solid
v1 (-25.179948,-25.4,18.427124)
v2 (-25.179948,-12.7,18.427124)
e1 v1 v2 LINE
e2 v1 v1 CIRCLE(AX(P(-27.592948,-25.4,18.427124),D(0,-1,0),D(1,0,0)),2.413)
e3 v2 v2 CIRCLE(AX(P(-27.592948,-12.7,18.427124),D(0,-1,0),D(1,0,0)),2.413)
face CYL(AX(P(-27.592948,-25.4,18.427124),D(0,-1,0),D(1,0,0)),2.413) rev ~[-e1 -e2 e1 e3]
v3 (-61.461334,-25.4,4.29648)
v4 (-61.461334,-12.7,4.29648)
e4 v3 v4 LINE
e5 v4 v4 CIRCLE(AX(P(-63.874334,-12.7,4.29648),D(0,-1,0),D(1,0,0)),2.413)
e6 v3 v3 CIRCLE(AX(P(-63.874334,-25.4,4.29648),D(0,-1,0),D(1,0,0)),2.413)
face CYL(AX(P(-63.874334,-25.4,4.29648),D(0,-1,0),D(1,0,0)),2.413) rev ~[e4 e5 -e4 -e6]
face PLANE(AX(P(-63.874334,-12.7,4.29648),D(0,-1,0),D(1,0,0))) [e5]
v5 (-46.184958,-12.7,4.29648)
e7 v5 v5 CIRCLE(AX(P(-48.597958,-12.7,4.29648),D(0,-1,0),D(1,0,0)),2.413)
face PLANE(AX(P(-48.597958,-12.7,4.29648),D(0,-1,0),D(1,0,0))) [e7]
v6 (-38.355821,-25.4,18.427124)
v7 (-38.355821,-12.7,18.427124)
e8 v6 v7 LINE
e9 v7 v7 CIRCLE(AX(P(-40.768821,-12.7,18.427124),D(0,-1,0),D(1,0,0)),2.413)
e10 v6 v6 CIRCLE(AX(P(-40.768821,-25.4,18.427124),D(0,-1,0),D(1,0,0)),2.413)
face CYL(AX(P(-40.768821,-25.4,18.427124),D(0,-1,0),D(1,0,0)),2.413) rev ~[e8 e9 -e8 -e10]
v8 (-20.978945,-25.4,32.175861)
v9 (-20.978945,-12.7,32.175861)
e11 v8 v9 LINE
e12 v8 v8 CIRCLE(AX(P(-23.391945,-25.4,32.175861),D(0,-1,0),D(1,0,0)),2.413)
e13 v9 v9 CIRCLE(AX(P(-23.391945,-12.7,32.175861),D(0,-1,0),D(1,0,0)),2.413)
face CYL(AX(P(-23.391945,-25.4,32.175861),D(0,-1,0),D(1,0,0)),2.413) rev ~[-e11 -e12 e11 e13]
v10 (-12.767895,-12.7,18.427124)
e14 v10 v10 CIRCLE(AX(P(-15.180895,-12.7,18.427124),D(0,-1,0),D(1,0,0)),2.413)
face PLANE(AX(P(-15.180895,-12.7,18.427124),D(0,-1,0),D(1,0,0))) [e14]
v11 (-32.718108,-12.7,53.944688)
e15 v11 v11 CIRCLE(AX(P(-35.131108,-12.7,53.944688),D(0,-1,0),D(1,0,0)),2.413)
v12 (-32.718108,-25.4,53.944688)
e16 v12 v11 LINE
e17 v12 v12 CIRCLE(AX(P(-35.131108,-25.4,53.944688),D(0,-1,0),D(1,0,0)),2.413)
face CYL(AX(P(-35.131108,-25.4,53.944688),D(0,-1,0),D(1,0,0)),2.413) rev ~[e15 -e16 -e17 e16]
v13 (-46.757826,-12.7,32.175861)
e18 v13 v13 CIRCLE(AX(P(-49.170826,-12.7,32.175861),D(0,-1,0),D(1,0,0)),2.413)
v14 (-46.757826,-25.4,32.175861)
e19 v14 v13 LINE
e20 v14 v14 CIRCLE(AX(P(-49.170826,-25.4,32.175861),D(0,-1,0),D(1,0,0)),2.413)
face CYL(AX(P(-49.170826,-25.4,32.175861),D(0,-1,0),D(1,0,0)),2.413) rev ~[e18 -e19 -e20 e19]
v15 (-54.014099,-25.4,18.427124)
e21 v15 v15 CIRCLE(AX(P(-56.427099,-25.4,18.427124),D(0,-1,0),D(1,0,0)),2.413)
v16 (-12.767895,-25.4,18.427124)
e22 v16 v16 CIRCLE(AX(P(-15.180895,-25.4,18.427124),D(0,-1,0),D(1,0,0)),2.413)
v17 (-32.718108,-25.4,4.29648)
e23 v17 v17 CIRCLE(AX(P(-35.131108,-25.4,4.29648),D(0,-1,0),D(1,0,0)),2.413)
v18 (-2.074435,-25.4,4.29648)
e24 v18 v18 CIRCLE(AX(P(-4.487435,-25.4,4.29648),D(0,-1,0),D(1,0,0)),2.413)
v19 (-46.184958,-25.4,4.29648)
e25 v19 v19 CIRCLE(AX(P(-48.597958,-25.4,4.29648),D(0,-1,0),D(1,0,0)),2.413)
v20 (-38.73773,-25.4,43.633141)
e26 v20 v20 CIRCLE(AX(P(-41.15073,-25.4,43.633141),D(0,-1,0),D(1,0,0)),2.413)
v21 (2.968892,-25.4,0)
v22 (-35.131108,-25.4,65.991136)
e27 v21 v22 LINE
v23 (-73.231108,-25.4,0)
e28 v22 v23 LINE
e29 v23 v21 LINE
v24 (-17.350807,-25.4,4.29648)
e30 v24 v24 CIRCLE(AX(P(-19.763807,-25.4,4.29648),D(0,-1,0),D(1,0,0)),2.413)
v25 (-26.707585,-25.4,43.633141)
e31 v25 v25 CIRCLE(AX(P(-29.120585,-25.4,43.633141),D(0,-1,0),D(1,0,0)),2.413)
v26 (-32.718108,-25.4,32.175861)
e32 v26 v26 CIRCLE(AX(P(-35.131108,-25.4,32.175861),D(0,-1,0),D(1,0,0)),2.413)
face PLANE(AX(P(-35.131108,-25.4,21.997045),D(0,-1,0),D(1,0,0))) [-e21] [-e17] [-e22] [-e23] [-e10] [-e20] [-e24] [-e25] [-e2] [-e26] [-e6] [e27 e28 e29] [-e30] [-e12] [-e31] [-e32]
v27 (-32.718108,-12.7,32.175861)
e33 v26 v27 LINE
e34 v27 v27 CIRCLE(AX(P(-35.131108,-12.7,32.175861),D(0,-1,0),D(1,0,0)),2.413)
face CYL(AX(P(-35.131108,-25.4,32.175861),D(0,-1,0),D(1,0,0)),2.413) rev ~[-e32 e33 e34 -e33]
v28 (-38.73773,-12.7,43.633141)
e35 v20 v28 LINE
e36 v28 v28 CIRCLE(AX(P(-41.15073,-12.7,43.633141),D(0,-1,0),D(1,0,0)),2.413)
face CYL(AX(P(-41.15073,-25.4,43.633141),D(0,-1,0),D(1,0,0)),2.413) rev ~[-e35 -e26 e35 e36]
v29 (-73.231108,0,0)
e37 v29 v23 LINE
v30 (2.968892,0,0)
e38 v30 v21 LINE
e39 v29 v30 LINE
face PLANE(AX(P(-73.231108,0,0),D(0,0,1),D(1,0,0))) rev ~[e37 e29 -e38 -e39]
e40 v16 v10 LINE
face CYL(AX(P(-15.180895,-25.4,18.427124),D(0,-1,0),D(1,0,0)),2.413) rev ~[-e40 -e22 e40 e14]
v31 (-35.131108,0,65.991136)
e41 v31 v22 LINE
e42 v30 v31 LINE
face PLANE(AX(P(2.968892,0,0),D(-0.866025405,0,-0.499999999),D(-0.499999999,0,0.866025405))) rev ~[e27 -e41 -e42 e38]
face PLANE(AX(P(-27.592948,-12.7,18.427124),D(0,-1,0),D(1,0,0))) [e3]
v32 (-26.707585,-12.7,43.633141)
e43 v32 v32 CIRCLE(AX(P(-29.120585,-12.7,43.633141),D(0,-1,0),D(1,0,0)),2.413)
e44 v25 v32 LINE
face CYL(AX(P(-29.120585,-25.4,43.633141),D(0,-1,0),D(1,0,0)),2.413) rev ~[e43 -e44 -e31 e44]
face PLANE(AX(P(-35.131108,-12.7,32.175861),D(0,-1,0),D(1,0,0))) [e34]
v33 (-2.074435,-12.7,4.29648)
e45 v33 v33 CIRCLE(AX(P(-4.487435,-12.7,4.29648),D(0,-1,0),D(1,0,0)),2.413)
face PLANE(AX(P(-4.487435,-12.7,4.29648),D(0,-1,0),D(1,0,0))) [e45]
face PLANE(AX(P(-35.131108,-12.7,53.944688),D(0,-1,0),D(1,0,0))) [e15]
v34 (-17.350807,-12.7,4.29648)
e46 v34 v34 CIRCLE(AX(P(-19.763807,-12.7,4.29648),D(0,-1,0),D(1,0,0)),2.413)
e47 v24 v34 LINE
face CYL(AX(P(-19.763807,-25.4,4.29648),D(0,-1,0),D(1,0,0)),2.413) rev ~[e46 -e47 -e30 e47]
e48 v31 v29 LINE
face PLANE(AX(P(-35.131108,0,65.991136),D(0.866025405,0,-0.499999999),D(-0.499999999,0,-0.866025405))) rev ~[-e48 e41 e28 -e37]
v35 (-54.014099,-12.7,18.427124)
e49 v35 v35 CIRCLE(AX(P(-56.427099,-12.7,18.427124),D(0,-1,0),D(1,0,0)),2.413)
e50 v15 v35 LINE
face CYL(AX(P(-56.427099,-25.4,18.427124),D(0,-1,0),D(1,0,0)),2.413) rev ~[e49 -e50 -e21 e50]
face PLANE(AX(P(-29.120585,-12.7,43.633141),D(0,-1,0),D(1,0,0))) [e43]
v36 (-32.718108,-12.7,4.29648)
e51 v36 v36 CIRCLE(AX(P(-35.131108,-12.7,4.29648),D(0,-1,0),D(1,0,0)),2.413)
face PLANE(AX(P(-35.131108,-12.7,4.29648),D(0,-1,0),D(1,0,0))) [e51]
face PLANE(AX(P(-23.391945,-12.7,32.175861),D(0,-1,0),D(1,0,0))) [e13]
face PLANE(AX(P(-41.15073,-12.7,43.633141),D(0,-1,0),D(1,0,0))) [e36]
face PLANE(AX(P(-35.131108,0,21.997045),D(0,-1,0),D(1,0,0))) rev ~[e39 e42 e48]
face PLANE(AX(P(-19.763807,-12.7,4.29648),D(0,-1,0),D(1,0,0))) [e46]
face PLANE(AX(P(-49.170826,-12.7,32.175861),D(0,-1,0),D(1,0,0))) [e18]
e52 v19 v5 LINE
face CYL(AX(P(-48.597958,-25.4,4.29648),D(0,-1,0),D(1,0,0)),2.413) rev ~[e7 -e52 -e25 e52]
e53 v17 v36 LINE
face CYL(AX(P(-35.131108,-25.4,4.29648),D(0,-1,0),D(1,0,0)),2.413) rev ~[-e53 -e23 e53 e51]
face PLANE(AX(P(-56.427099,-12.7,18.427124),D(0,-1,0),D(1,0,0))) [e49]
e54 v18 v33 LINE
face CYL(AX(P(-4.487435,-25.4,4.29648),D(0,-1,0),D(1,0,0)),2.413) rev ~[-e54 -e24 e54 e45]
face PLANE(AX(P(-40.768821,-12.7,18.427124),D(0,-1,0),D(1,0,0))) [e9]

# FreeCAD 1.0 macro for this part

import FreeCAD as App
import Part
import Sketcher

V = App.Vector
Q = App.Units.Quantity


def add_polygon(sketch, points):
    """Adds a closed chain of lines whose ends are joined by coincident constraints."""
    first, n = sketch.GeometryCount, len(points)
    for a, b in zip(points, points[1:] + points[:1]):
        sketch.addGeometry(Part.LineSegment(App.Vector(*a, 0), App.Vector(*b, 0)), False)
    for i in range(n):
        sketch.addConstraint(Sketcher.Constraint("Coincident", first + i, 2, first + (i + 1) % n, 1))

doc = App.newDocument("Part")
body = doc.addObject("PartDesign::Body", "Body")

# Sketch on XZ plane
sketch1 = body.newObject("Sketcher::SketchObject", "Sketch")
sketch1.AttachmentSupport = (doc.getObject("XZ_Plane"), [""])
sketch1.MapMode = "FlatFace"
add_polygon(sketch1, [(-35.131108, 65.991136), (-73.231108, 0), (2.968892, 0)])  # lines 0-2
sketch1.addConstraint([
    Sketcher.Constraint("Horizontal", 1),
    Sketcher.Constraint("PointOnObject", 0, 2, -1),
    Sketcher.Constraint("Equal", 0, 2),
    Sketcher.Constraint("DistanceX", 1, 1, 1, 2, Q("3 in")),
    Sketcher.Constraint("Distance", 0, Q("3 in")),
    Sketcher.Constraint("DistanceX", 0, 2, -1, 1, 73.231108),
])
pad1 = body.newObject("PartDesign::Pad", "Pad")
pad1.Profile = sketch1
pad1.Length = Q("1 in")

# Sketch on XZ plane
sketch2 = body.newObject("Sketcher::SketchObject", "Sketch001")
sketch2.AttachmentSupport = (doc.getObject("XZ_Plane"), [""])
sketch2.MapMode = "FlatFace"
sketch2.AttachmentOffset = App.Placement(V(0, 0, 1 * 25.4), App.Rotation())
sketch2.addGeometry([
    Part.Circle(V(-63.874334, 4.29648, 0), V(0, 0, 1), 2.413),  # 0
    Part.Circle(V(-48.597958, 4.29648, 0), V(0, 0, 1), 2.413),  # 1
    Part.Circle(V(-35.131108, 4.29648, 0), V(0, 0, 1), 2.413),  # 2
    Part.Circle(V(-19.763807, 4.29648, 0), V(0, 0, 1), 2.413),  # 3
    Part.Circle(V(-4.487435, 4.29648, 0), V(0, 0, 1), 2.413),  # 4
], False)
sketch2.addConstraint([
    Sketcher.Constraint("Equal", 0, 1),
    Sketcher.Constraint("Equal", 1, 2),
    Sketcher.Constraint("Equal", 2, 3),
    Sketcher.Constraint("Equal", 3, 4),
    Sketcher.Constraint("Horizontal", 0, 3, 1, 3),
    Sketcher.Constraint("Horizontal", 1, 3, 2, 3),
    Sketcher.Constraint("Horizontal", 2, 3, 3, 3),
    Sketcher.Constraint("Horizontal", 3, 3, 4, 3),
    Sketcher.Constraint("Diameter", 0, Q("0.19 in")),
    Sketcher.Constraint("DistanceX", 2, 3, 3, 3, 15.367301),
    Sketcher.Constraint("DistanceX", 0, 3, 4, 3, 59.386899),
    Sketcher.Constraint("DistanceY", -1, 1, 0, 3, 4.29648),
    Sketcher.Constraint("DistanceX", 1, 3, 2, 3, 13.46685),
    Sketcher.Constraint("DistanceX", 0, 3, -1, 1, 63.874334),
    Sketcher.Constraint("DistanceX", 1, 3, -1, 1, 48.597958),
])
pocket1 = body.newObject("PartDesign::Pocket", "Pocket")
pocket1.Profile = sketch2
pocket1.Length = Q("0.5 in")

# Sketch on XZ plane
sketch3 = body.newObject("Sketcher::SketchObject", "Sketch002")
sketch3.AttachmentSupport = (doc.getObject("XZ_Plane"), [""])
sketch3.MapMode = "FlatFace"
sketch3.AttachmentOffset = App.Placement(V(0, 0, 1 * 25.4), App.Rotation())
sketch3.addGeometry([
    Part.Circle(V(-56.427099, 18.427124, 0), V(0, 0, 1), 2.413),  # 0
    Part.Circle(V(-40.768821, 18.427124, 0), V(0, 0, 1), 2.413),  # 1
    Part.Circle(V(-27.592948, 18.427124, 0), V(0, 0, 1), 2.413),  # 2
    Part.Circle(V(-15.180895, 18.427124, 0), V(0, 0, 1), 2.413),  # 3
    Part.Circle(V(-23.391945, 32.175861, 0), V(0, 0, 1), 2.413),  # 4
    Part.Circle(V(-35.131108, 32.175861, 0), V(0, 0, 1), 2.413),  # 5
    Part.Circle(V(-49.170826, 32.175861, 0), V(0, 0, 1), 2.413),  # 6
    Part.Circle(V(-41.15073, 43.633141, 0), V(0, 0, 1), 2.413),  # 7
    Part.Circle(V(-29.120585, 43.633141, 0), V(0, 0, 1), 2.413),  # 8
    Part.Circle(V(-35.131108, 53.944688, 0), V(0, 0, 1), 2.413),  # 9
], False)
sketch3.addConstraint([
    Sketcher.Constraint("Equal", 0, 1),
    Sketcher.Constraint("Equal", 1, 2),
    Sketcher.Constraint("Equal", 2, 3),
    Sketcher.Constraint("Equal", 3, 4),
    Sketcher.Constraint("Equal", 4, 5),
    Sketcher.Constraint("Equal", 5, 6),
    Sketcher.Constraint("Equal", 6, 7),
    Sketcher.Constraint("Equal", 7, 8),
    Sketcher.Constraint("Equal", 8, 9),
    Sketcher.Constraint("Horizontal", 0, 3, 1, 3),
    Sketcher.Constraint("Horizontal", 1, 3, 2, 3),
    Sketcher.Constraint("Horizontal", 2, 3, 3, 3),
    Sketcher.Constraint("Horizontal", 4, 3, 5, 3),
    Sketcher.Constraint("Horizontal", 5, 3, 6, 3),
    Sketcher.Constraint("Horizontal", 7, 3, 8, 3),
    Sketcher.Constraint("Vertical", 5, 3, 9, 3),
    Sketcher.Constraint("Diameter", 0, Q("0.19 in")),
    Sketcher.Constraint("DistanceX", 0, 3, -1, 1, 56.427099),
    Sketcher.Constraint("DistanceX", 1, 3, -1, 1, 40.768821),
    Sketcher.Constraint("DistanceX", 2, 3, -1, 1, 27.592948),
    Sketcher.Constraint("DistanceY", -1, 1, 4, 3, 32.175861),
    Sketcher.Constraint("DistanceX", 7, 3, -1, 1, 41.15073),
    Sketcher.Constraint("DistanceY", -1, 1, 7, 3, 43.633141),
    Sketcher.Constraint("DistanceX", 4, 3, 3, 3, 8.21105),
    Sketcher.Constraint("DistanceX", 5, 3, 2, 3, 7.53816),
    Sketcher.Constraint("DistanceX", 6, 3, 4, 3, 25.778881),
    Sketcher.Constraint("DistanceX", 8, 3, 4, 3, 5.72864),
    Sketcher.Constraint("DistanceY", -1, 1, 0, 3, 18.427124),
    Sketcher.Constraint("DistanceX", 3, 3, -1, 1, 15.180895),
    Sketcher.Constraint("DistanceY", -1, 1, 9, 3, 53.944688),
])
pocket2 = body.newObject("PartDesign::Pocket", "Pocket001")
pocket2.Profile = sketch3
pocket2.Length = Q("0.5 in")

doc.recompute()
